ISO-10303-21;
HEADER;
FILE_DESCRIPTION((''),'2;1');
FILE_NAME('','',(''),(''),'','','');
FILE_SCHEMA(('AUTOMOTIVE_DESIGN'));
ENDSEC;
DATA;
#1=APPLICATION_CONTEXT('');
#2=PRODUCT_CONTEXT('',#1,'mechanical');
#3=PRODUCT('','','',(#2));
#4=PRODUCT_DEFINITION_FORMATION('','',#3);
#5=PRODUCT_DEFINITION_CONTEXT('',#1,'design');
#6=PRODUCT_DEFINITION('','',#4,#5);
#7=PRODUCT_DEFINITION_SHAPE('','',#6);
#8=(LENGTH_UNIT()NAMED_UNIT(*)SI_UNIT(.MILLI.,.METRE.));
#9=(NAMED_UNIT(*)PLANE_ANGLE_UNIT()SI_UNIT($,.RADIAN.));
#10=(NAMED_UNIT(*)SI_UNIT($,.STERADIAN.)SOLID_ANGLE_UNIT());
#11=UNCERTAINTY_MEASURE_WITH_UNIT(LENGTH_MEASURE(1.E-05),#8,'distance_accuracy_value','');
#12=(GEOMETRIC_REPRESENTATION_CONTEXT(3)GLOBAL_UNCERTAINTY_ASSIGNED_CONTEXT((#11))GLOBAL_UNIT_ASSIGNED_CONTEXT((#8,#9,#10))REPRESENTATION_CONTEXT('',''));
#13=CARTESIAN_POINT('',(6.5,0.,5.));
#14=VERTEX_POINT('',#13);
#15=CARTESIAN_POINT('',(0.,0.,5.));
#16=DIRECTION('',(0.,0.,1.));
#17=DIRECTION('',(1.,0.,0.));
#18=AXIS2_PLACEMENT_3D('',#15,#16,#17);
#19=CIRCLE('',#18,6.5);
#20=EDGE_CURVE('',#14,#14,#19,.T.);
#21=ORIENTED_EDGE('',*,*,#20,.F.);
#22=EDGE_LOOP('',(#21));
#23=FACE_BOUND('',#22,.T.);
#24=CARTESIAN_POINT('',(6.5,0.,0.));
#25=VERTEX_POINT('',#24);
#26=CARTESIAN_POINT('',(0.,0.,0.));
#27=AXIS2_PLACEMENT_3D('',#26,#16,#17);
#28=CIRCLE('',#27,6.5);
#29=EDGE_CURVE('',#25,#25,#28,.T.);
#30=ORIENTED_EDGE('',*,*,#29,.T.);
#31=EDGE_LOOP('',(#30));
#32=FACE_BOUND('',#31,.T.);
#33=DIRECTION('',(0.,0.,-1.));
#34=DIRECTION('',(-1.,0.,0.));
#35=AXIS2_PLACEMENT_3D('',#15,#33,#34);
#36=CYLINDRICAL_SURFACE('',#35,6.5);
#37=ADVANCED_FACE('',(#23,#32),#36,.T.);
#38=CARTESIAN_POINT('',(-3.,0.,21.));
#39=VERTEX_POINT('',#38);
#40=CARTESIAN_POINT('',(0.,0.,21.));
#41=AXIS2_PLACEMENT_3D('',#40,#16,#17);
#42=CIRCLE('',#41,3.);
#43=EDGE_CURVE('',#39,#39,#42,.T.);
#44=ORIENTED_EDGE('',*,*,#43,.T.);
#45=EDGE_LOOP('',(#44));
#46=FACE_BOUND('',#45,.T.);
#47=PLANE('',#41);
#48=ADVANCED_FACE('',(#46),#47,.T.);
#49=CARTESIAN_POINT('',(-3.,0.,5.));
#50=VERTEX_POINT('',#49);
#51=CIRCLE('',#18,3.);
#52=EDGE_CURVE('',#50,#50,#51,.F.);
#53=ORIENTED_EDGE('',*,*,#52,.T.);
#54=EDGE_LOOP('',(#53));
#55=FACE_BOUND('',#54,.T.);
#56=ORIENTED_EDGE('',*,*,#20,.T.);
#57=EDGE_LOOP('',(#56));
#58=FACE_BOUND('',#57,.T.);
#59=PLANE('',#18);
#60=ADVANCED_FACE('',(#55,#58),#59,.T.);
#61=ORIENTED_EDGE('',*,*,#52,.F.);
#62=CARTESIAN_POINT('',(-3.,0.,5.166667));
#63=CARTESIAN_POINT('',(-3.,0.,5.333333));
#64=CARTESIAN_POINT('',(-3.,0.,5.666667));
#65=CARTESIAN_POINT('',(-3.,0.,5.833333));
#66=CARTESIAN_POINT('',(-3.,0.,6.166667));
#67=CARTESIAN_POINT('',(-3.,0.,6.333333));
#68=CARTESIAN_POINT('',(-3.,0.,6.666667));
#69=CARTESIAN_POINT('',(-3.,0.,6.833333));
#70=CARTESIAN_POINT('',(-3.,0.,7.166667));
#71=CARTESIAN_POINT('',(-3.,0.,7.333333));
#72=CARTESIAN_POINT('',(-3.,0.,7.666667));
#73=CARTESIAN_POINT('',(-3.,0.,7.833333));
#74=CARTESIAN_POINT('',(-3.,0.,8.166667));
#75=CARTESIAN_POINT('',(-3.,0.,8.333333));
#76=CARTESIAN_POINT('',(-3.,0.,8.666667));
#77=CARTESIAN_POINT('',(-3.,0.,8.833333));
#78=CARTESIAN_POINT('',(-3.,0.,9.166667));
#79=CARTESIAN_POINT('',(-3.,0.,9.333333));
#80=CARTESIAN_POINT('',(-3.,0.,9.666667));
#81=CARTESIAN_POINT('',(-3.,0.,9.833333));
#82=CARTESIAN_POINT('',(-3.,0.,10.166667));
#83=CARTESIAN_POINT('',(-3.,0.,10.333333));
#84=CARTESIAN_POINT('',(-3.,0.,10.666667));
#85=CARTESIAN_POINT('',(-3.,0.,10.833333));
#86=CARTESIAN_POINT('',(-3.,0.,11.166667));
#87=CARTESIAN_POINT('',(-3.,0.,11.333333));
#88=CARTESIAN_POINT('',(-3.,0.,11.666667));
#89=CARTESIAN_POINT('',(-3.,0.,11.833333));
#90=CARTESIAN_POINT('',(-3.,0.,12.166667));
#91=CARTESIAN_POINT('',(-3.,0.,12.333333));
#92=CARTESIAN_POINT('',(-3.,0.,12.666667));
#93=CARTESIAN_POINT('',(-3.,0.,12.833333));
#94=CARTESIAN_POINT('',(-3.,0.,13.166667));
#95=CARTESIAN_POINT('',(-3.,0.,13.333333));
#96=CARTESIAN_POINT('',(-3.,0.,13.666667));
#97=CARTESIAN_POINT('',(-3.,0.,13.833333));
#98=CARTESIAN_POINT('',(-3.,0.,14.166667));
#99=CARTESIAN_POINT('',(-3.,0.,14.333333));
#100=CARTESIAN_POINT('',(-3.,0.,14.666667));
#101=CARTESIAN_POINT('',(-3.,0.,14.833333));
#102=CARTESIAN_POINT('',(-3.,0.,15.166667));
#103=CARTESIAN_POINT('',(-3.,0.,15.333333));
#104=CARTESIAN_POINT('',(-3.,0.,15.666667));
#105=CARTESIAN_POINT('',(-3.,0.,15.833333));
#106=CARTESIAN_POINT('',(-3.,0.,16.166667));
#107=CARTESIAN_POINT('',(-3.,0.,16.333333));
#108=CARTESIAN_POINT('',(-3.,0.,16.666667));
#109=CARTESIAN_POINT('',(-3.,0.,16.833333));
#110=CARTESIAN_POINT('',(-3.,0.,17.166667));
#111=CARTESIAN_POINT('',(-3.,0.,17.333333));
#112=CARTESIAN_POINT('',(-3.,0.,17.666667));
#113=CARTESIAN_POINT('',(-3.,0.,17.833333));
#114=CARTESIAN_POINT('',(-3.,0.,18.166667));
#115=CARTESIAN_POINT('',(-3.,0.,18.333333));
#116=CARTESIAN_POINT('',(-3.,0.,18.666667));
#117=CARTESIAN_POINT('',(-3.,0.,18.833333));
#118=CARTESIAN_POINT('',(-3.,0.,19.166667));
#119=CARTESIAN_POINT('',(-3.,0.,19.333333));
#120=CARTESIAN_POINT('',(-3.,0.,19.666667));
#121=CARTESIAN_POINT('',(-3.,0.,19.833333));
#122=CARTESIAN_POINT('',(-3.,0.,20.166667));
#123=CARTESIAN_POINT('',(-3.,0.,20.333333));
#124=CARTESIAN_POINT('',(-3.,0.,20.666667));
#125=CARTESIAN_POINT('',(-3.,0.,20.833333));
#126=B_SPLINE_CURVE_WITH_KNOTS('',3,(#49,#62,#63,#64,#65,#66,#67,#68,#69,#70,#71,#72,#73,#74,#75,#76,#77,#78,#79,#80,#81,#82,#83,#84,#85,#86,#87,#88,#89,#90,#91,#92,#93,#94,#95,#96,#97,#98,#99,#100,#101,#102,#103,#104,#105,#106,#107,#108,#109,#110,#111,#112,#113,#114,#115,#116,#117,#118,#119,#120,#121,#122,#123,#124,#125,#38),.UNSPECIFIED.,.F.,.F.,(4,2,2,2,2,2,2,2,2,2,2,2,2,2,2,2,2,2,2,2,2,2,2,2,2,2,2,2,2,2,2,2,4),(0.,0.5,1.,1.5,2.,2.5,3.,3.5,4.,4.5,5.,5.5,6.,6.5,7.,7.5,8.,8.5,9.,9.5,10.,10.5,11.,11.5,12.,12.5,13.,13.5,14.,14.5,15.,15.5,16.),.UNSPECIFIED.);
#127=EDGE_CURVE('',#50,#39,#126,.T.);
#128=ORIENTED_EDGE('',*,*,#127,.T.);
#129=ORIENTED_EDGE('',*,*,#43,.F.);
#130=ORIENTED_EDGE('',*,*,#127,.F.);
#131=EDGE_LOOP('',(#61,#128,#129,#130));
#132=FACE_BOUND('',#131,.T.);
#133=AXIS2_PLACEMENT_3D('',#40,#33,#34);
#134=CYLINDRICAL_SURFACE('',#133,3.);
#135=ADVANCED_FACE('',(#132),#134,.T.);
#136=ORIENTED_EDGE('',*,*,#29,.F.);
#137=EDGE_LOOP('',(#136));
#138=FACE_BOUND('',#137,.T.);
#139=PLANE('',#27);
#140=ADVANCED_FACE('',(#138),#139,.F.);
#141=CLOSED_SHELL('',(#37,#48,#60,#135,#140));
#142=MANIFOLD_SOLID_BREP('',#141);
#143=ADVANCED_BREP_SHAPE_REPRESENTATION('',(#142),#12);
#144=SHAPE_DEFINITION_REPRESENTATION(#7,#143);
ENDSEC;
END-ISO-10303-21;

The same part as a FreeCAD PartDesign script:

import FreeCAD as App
import Part
import Sketcher
from FreeCAD import Vector

doc = App.newDocument("Part")
body = doc.addObject("PartDesign::Body", "Body")

# Sketch on XY plane
sketch1 = body.newObject("Sketcher::SketchObject", "Sketch")
sketch1.AttachmentSupport = (doc.getObject("XY_Plane"), [""])
sketch1.MapMode = "FlatFace"
sketch1.addGeometry(Part.Circle(Vector(0, 0, 0), Vector(0, 0, 1), 6), False)
sketch1.addConstraint(Sketcher.Constraint("Coincident", 0, 3, -1, 1))
sketch1.addConstraint(Sketcher.Constraint("Diameter", 0, 13.0))
pad1 = body.newObject("PartDesign::Pad", "Pad")
pad1.Profile = sketch1
pad1.Length = 5

# Sketch on XY plane
sketch2 = body.newObject("Sketcher::SketchObject", "Sketch001")
sketch2.AttachmentSupport = (doc.getObject("XY_Plane"), [""])
sketch2.MapMode = "FlatFace"
sketch2.addGeometry(Part.Circle(Vector(0, 0, 0), Vector(0, 0, 1), 3), False)
sketch2.addConstraint(Sketcher.Constraint("Coincident", 0, 3, -1, 1))
sketch2.addConstraint(Sketcher.Constraint("Diameter", 0, 6.0))
pad2 = body.newObject("PartDesign::Pad", "Pad001")
pad2.Profile = sketch2
pad2.Length = 21

doc.recompute()
